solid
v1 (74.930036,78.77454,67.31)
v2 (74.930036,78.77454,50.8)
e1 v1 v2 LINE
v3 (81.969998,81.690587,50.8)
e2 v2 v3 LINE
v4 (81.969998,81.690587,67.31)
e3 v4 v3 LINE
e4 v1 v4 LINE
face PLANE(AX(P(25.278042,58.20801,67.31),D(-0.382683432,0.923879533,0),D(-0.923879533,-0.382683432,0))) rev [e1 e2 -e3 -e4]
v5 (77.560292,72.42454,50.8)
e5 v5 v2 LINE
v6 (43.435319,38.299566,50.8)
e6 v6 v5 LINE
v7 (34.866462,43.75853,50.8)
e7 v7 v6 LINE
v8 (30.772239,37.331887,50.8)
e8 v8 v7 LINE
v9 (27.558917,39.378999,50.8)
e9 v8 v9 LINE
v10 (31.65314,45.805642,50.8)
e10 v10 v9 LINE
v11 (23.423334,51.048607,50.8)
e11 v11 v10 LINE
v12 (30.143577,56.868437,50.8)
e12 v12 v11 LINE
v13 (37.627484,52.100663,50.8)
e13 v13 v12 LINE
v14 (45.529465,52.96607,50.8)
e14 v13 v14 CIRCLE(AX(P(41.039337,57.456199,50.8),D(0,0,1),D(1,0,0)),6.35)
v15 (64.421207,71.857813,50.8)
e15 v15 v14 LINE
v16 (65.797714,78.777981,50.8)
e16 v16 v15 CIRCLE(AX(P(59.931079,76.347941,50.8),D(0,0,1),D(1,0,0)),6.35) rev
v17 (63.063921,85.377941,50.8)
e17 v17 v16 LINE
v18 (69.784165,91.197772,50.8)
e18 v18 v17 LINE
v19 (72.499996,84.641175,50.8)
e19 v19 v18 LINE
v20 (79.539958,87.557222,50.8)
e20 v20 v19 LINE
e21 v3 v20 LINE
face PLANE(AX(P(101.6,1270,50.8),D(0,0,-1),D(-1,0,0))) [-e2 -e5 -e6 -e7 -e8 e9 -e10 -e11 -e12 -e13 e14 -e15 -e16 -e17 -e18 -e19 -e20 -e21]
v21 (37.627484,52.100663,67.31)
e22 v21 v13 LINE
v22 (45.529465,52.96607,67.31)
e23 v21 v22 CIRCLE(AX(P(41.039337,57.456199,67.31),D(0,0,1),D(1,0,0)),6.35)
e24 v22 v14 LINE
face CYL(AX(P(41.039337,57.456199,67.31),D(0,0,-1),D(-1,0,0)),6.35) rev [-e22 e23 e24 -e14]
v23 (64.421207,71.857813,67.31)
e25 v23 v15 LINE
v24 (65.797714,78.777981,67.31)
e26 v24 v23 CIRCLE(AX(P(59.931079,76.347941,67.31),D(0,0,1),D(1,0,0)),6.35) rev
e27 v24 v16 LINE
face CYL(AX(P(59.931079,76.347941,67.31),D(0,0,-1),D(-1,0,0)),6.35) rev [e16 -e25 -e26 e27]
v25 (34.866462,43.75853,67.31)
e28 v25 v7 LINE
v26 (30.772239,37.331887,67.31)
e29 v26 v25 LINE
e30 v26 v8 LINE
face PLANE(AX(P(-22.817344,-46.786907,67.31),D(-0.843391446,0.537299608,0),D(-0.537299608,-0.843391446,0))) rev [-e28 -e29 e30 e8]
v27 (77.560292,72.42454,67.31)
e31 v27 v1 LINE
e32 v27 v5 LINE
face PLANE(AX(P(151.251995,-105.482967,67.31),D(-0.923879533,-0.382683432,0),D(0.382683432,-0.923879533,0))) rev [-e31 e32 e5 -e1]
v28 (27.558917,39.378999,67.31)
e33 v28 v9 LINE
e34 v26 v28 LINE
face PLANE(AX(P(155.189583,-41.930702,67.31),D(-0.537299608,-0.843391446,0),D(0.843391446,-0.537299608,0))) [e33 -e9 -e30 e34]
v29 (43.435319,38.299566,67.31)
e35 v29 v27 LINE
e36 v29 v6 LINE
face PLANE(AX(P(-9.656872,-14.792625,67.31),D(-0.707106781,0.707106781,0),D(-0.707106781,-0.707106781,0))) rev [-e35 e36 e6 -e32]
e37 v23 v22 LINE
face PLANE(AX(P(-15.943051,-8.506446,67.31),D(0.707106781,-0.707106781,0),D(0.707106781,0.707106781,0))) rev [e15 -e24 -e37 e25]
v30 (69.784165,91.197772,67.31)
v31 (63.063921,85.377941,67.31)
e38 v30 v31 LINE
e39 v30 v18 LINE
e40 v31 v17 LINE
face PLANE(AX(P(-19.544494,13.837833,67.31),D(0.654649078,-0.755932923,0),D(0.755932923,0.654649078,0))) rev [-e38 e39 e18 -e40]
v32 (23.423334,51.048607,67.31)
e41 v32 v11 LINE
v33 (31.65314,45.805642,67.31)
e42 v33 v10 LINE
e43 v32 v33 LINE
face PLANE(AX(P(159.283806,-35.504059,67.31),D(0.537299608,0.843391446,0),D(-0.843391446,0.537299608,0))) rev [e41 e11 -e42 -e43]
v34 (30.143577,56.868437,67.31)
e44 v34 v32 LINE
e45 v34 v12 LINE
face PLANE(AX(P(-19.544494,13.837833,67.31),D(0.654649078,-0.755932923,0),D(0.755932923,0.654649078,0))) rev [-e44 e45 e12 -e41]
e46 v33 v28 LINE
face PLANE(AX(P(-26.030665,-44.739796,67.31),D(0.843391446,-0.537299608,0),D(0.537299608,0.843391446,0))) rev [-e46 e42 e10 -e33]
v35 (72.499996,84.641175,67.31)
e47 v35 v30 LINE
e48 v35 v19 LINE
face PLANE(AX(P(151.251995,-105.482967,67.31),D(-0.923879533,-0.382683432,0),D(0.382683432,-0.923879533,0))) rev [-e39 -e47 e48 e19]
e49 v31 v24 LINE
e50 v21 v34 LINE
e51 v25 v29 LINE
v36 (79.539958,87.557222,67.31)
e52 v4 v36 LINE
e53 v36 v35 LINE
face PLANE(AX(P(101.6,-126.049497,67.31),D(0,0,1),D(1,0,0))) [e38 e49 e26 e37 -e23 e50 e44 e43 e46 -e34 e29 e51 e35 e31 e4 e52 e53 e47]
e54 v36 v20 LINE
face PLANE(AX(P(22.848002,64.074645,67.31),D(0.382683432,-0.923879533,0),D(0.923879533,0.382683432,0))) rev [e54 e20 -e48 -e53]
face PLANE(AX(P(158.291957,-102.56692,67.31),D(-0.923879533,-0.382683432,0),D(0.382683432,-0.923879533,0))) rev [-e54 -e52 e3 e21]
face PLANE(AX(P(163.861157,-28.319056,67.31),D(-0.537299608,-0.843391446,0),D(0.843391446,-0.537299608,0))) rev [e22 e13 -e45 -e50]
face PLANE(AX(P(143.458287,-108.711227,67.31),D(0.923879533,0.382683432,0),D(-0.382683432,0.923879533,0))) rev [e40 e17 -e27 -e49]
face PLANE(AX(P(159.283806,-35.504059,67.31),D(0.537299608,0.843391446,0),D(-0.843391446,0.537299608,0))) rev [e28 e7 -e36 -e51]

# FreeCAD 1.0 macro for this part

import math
import FreeCAD as App
import Part
import Sketcher
Q = App.Units.Quantity

doc = App.newDocument("Part")
body = doc.addObject("PartDesign::Body", "Body")

# Sketch on XY plane
sketch1 = body.newObject("Sketcher::SketchObject", "Sketch")
sketch1.AttachmentSupport = (doc.getObject("XY_Plane"), [""])
sketch1.MapMode = "FlatFace"
sketch1.addGeometry([
    Part.LineSegment(App.Vector(0, 102, 0), App.Vector(0, 0, 0)),
    Part.LineSegment(App.Vector(0, 0, 0), App.Vector(203, 0, 0)),
    Part.LineSegment(App.Vector(203, 0, 0), App.Vector(203, 102, 0)),
    Part.LineSegment(App.Vector(203, 102, 0), App.Vector(0, 102, 0)),
], False)
sketch1.addConstraint([
    Sketcher.Constraint("Coincident", 0, 2, 1, 1),
    Sketcher.Constraint("Coincident", 1, 2, 2, 1),
    Sketcher.Constraint("Coincident", 2, 2, 3, 1),
    Sketcher.Constraint("Coincident", 3, 2, 0, 1),
    Sketcher.Constraint("Vertical", 0),
    Sketcher.Constraint("Horizontal", 1),
    Sketcher.Constraint("Vertical", 2),
    Sketcher.Constraint("Horizontal", 3),
    Sketcher.Constraint("Coincident", 0, 2, -1, 1),
    Sketcher.Constraint("DistanceX", 1, 1, 1, 2, Q("8 in")),
    Sketcher.Constraint("DistanceY", 0, 2, 0, 1, Q("4 in")),
])
pad1 = body.newObject("PartDesign::Pad", "Pad")
pad1.Profile = sketch1
pad1.Length = Q("2 in")

# Sketch on XY plane
sketch2 = body.newObject("Sketcher::SketchObject", "Sketch001")
sketch2.AttachmentSupport = (doc.getObject("XY_Plane"), [""])
sketch2.MapMode = "FlatFace"
sketch2.AttachmentOffset = App.Placement(App.Vector(0, 0, 2 * 25.4), App.Rotation())
sketch2.addGeometry([
    Part.ArcOfCircle(Part.Circle(App.Vector(41, 57.5, 0), App.Vector(0, 0, 1), 6.3), math.radians(-122), math.radians(-45)),  # 0
    Part.LineSegment(App.Vector(37.6, 52.1, 0), App.Vector(30.1, 56.9, 0)),  # 1
    Part.LineSegment(App.Vector(30.1, 56.9, 0), App.Vector(23.4, 51, 0)),  # 2
    Part.LineSegment(App.Vector(23.4, 51, 0), App.Vector(31.7, 45.8, 0)),  # 3
    Part.LineSegment(App.Vector(31.7, 45.8, 0), App.Vector(27.6, 39.4, 0)),  # 4
    Part.LineSegment(App.Vector(27.6, 39.4, 0), App.Vector(30.8, 37.3, 0)),  # 5
    Part.LineSegment(App.Vector(30.8, 37.3, 0), App.Vector(34.9, 43.8, 0)),  # 6
    Part.LineSegment(App.Vector(34.9, 43.8, 0), App.Vector(43.4, 38.3, 0)),  # 7
    Part.LineSegment(App.Vector(43.4, 38.3, 0), App.Vector(77.6, 72.4, 0)),  # 8
    Part.LineSegment(App.Vector(77.6, 72.4, 0), App.Vector(74.9, 78.8, 0)),  # 9
    Part.LineSegment(App.Vector(74.9, 78.8, 0), App.Vector(82, 81.7, 0)),  # 10
    Part.LineSegment(App.Vector(82, 81.7, 0), App.Vector(79.5, 87.6, 0)),  # 11
    Part.LineSegment(App.Vector(79.5, 87.6, 0), App.Vector(72.5, 84.6, 0)),  # 12
    Part.LineSegment(App.Vector(72.5, 84.6, 0), App.Vector(69.8, 91.2, 0)),  # 13
    Part.LineSegment(App.Vector(69.8, 91.2, 0), App.Vector(63.1, 85.4, 0)),  # 14
    Part.LineSegment(App.Vector(63.1, 85.4, 0), App.Vector(65.8, 78.8, 0)),  # 15
    Part.ArcOfCircle(Part.Circle(App.Vector(59.9, 76.3, 0), App.Vector(0, 0, 1), 6.3), math.radians(-45), math.radians(23)),  # 16
    Part.LineSegment(App.Vector(64.4, 71.9, 0), App.Vector(45.5, 53, 0)),  # 17
], False)
sketch2.addConstraint([
    Sketcher.Constraint("Tangent", 0, 1, 1, 1),
    Sketcher.Constraint("Coincident", 1, 2, 2, 1),
    Sketcher.Constraint("Coincident", 2, 2, 3, 1),
    Sketcher.Constraint("Coincident", 3, 2, 4, 1),
    Sketcher.Constraint("Coincident", 4, 2, 5, 1),
    Sketcher.Constraint("Coincident", 5, 2, 6, 1),
    Sketcher.Constraint("Coincident", 6, 2, 7, 1),
    Sketcher.Constraint("Coincident", 7, 2, 8, 1),
    Sketcher.Constraint("Coincident", 8, 2, 9, 1),
    Sketcher.Constraint("Coincident", 9, 2, 10, 1),
    Sketcher.Constraint("Coincident", 10, 2, 11, 1),
    Sketcher.Constraint("Coincident", 11, 2, 12, 1),
    Sketcher.Constraint("Coincident", 12, 2, 13, 1),
    Sketcher.Constraint("Coincident", 13, 2, 14, 1),
    Sketcher.Constraint("Coincident", 14, 2, 15, 1),
    Sketcher.Constraint("Tangent", 15, 2, 16, 2),
    Sketcher.Constraint("Tangent", 16, 1, 17, 1),
    Sketcher.Constraint("Tangent", 17, 2, 0, 2),
    Sketcher.Constraint("Equal", 0, 16),
    Sketcher.Constraint("Parallel", 1, 3),
    Sketcher.Constraint("Perpendicular", 3, 4),
    Sketcher.Constraint("Perpendicular", 4, 5),
    Sketcher.Constraint("Perpendicular", 5, 6),
    Sketcher.Constraint("Perpendicular", 6, 7),
    Sketcher.Constraint("Perpendicular", 9, 10),
    Sketcher.Constraint("Perpendicular", 10, 11),
    Sketcher.Constraint("Perpendicular", 11, 12),
    Sketcher.Constraint("Perpendicular", 12, 13),
    Sketcher.Constraint("Parallel", 2, 14),
    Sketcher.Constraint("Parallel", 13, 15),
    Sketcher.Constraint("Parallel", 8, 17),
    Sketcher.Constraint("Equal", 4, 6),
    Sketcher.Constraint("Equal", 6, 10),
    Sketcher.Constraint("Equal", 10, 12),
    Sketcher.Constraint("Equal", 2, 14),
    Sketcher.Constraint("Radius", 0, Q("0.25 in")),
    Sketcher.Constraint("Angle", 8, Q("45 deg")),
    Sketcher.Constraint("Distance", 4, Q("0.3 in")),
    Sketcher.Constraint("Distance", 7, Q("0.4 in")),
    Sketcher.Constraint("Distance", 8, Q("1.9 in")),
    Sketcher.Constraint("Angle", 1, Q("147.5 deg")),
    Sketcher.Constraint("Angle", 9, Q("112.5 deg")),
    Sketcher.Constraint("Distance", 2, Q("0.35 in")),
    Sketcher.Constraint("Distance", 5, Q("0.15 in")),
    Sketcher.Constraint("Distance", 11, Q("0.25 in")),
    Sketcher.Constraint("DistanceY", 8, 2, 9, 2, Q("0.25 in")),
    Sketcher.Constraint("DistanceY", -1, 1, 0, 3, Q("57.456199 mm")),
    Sketcher.Constraint("DistanceY", -1, 1, 4, 2, Q("39.378999 mm")),
    Sketcher.Constraint("DistanceX", -1, 1, 10, 2, Q("81.969998 mm")),
    Sketcher.Constraint("DistanceX", 1, 2, 16, 3, Q("29.787502 mm")),
    Sketcher.Constraint("DistanceY", 3, 2, 16, 3, Q("30.542299 mm")),
    Sketcher.Constraint("DistanceY", 16, 3, 14, 2, Q("9.03 mm")),
])
pad2 = body.newObject("PartDesign::Pad", "Pad001")
pad2.Profile = sketch2
pad2.Length = Q("0.65 in")

# Sketch on XZ plane
sketch3 = body.newObject("Sketcher::SketchObject", "Sketch002")
sketch3.AttachmentSupport = (doc.getObject("XZ_Plane"), [""])
sketch3.MapMode = "FlatFace"
sketch3.addGeometry([
    Part.LineSegment(App.Vector(0, 51, 0), App.Vector(0, 0, 0)),
    Part.LineSegment(App.Vector(0, 0, 0), App.Vector(203, 0, 0)),
    Part.LineSegment(App.Vector(203, 0, 0), App.Vector(203, 51, 0)),
    Part.LineSegment(App.Vector(203, 51, 0), App.Vector(0, 51, 0)),
], False)
sketch3.addConstraint([
    Sketcher.Constraint("Coincident", 0, 2, 1, 1),
    Sketcher.Constraint("Coincident", 1, 2, 2, 1),
    Sketcher.Constraint("Coincident", 2, 2, 3, 1),
    Sketcher.Constraint("Coincident", 3, 2, 0, 1),
    Sketcher.Constraint("Vertical", 0),
    Sketcher.Constraint("Horizontal", 1),
    Sketcher.Constraint("Vertical", 2),
    Sketcher.Constraint("Horizontal", 3),
    Sketcher.Constraint("Coincident", 0, 2, -1, 1),
    Sketcher.Constraint("DistanceX", 1, 1, 1, 2, Q("8 in")),
    Sketcher.Constraint("DistanceY", 0, 2, 0, 1, Q("2 in")),
])
pocket1 = body.newObject("PartDesign::Pocket", "Pocket")
pocket1.Profile = sketch3
pocket1.Length = Q("50 in")

doc.recompute()
